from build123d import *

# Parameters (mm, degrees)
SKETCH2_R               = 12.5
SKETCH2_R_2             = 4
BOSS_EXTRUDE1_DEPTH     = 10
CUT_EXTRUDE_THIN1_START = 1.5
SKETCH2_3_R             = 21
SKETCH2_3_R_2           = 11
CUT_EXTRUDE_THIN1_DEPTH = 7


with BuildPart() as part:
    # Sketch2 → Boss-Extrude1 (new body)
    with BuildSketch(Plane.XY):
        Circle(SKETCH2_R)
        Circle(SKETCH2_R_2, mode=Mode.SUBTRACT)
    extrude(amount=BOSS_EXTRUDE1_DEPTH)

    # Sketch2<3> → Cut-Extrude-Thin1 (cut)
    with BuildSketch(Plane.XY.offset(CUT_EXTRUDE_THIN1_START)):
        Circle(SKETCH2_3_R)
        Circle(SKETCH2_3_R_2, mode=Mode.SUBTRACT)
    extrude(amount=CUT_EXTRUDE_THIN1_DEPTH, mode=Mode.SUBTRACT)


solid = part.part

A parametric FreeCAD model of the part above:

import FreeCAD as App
import Part
import Sketcher

V = App.Vector

doc = App.newDocument("Part")
body = doc.addObject("PartDesign::Body", "Body")

# Sketch on XY plane
sketch1 = body.newObject("Sketcher::SketchObject", "Sketch")
sketch1.AttachmentSupport = (doc.getObject("XY_Plane"), [""])
sketch1.MapMode = "FlatFace"
sketch1.addGeometry(Part.Circle(V(0, 0, 0), V(0, 0, 1), 12.5), False)
sketch1.addGeometry(Part.Circle(V(0, 0, 0), V(0, 0, 1), 4), False)
sketch1.addConstraint(Sketcher.Constraint("Coincident", 0, 3, -1, 1))
sketch1.addConstraint(Sketcher.Constraint("Coincident", 1, 3, -1, 1))
sketch1.addConstraint(Sketcher.Constraint("Diameter", 0, 25.0))
sketch1.addConstraint(Sketcher.Constraint("Diameter", 1, 8.0))
pad1 = body.newObject("PartDesign::Pad", "Pad")
pad1.Profile = sketch1
pad1.Length = 10

# Sketch on XY plane
sketch2 = body.newObject("Sketcher::SketchObject", "Sketch001")
sketch2.AttachmentSupport = (doc.getObject("XY_Plane"), [""])
sketch2.MapMode = "FlatFace"
sketch2.AttachmentOffset = App.Placement(V(0, 0, 1.5), App.Rotation())
sketch2.addGeometry(Part.Circle(V(0, 0, 0), V(0, 0, 1), 21), False)
sketch2.addGeometry(Part.Circle(V(0, 0, 0), V(0, 0, 1), 11), False)
sketch2.addConstraint(Sketcher.Constraint("Coincident", 0, 3, -1, 1))
sketch2.addConstraint(Sketcher.Constraint("Coincident", 1, 3, -1, 1))
sketch2.addConstraint(Sketcher.Constraint("Diameter", 0, 42.0))
sketch2.addConstraint(Sketcher.Constraint("Diameter", 1, 22.0))
pocket1 = body.newObject("PartDesign::Pocket", "Pocket")
pocket1.Profile = sketch2
pocket1.Length = 7
pocket1.Reversed = True

doc.recompute()
